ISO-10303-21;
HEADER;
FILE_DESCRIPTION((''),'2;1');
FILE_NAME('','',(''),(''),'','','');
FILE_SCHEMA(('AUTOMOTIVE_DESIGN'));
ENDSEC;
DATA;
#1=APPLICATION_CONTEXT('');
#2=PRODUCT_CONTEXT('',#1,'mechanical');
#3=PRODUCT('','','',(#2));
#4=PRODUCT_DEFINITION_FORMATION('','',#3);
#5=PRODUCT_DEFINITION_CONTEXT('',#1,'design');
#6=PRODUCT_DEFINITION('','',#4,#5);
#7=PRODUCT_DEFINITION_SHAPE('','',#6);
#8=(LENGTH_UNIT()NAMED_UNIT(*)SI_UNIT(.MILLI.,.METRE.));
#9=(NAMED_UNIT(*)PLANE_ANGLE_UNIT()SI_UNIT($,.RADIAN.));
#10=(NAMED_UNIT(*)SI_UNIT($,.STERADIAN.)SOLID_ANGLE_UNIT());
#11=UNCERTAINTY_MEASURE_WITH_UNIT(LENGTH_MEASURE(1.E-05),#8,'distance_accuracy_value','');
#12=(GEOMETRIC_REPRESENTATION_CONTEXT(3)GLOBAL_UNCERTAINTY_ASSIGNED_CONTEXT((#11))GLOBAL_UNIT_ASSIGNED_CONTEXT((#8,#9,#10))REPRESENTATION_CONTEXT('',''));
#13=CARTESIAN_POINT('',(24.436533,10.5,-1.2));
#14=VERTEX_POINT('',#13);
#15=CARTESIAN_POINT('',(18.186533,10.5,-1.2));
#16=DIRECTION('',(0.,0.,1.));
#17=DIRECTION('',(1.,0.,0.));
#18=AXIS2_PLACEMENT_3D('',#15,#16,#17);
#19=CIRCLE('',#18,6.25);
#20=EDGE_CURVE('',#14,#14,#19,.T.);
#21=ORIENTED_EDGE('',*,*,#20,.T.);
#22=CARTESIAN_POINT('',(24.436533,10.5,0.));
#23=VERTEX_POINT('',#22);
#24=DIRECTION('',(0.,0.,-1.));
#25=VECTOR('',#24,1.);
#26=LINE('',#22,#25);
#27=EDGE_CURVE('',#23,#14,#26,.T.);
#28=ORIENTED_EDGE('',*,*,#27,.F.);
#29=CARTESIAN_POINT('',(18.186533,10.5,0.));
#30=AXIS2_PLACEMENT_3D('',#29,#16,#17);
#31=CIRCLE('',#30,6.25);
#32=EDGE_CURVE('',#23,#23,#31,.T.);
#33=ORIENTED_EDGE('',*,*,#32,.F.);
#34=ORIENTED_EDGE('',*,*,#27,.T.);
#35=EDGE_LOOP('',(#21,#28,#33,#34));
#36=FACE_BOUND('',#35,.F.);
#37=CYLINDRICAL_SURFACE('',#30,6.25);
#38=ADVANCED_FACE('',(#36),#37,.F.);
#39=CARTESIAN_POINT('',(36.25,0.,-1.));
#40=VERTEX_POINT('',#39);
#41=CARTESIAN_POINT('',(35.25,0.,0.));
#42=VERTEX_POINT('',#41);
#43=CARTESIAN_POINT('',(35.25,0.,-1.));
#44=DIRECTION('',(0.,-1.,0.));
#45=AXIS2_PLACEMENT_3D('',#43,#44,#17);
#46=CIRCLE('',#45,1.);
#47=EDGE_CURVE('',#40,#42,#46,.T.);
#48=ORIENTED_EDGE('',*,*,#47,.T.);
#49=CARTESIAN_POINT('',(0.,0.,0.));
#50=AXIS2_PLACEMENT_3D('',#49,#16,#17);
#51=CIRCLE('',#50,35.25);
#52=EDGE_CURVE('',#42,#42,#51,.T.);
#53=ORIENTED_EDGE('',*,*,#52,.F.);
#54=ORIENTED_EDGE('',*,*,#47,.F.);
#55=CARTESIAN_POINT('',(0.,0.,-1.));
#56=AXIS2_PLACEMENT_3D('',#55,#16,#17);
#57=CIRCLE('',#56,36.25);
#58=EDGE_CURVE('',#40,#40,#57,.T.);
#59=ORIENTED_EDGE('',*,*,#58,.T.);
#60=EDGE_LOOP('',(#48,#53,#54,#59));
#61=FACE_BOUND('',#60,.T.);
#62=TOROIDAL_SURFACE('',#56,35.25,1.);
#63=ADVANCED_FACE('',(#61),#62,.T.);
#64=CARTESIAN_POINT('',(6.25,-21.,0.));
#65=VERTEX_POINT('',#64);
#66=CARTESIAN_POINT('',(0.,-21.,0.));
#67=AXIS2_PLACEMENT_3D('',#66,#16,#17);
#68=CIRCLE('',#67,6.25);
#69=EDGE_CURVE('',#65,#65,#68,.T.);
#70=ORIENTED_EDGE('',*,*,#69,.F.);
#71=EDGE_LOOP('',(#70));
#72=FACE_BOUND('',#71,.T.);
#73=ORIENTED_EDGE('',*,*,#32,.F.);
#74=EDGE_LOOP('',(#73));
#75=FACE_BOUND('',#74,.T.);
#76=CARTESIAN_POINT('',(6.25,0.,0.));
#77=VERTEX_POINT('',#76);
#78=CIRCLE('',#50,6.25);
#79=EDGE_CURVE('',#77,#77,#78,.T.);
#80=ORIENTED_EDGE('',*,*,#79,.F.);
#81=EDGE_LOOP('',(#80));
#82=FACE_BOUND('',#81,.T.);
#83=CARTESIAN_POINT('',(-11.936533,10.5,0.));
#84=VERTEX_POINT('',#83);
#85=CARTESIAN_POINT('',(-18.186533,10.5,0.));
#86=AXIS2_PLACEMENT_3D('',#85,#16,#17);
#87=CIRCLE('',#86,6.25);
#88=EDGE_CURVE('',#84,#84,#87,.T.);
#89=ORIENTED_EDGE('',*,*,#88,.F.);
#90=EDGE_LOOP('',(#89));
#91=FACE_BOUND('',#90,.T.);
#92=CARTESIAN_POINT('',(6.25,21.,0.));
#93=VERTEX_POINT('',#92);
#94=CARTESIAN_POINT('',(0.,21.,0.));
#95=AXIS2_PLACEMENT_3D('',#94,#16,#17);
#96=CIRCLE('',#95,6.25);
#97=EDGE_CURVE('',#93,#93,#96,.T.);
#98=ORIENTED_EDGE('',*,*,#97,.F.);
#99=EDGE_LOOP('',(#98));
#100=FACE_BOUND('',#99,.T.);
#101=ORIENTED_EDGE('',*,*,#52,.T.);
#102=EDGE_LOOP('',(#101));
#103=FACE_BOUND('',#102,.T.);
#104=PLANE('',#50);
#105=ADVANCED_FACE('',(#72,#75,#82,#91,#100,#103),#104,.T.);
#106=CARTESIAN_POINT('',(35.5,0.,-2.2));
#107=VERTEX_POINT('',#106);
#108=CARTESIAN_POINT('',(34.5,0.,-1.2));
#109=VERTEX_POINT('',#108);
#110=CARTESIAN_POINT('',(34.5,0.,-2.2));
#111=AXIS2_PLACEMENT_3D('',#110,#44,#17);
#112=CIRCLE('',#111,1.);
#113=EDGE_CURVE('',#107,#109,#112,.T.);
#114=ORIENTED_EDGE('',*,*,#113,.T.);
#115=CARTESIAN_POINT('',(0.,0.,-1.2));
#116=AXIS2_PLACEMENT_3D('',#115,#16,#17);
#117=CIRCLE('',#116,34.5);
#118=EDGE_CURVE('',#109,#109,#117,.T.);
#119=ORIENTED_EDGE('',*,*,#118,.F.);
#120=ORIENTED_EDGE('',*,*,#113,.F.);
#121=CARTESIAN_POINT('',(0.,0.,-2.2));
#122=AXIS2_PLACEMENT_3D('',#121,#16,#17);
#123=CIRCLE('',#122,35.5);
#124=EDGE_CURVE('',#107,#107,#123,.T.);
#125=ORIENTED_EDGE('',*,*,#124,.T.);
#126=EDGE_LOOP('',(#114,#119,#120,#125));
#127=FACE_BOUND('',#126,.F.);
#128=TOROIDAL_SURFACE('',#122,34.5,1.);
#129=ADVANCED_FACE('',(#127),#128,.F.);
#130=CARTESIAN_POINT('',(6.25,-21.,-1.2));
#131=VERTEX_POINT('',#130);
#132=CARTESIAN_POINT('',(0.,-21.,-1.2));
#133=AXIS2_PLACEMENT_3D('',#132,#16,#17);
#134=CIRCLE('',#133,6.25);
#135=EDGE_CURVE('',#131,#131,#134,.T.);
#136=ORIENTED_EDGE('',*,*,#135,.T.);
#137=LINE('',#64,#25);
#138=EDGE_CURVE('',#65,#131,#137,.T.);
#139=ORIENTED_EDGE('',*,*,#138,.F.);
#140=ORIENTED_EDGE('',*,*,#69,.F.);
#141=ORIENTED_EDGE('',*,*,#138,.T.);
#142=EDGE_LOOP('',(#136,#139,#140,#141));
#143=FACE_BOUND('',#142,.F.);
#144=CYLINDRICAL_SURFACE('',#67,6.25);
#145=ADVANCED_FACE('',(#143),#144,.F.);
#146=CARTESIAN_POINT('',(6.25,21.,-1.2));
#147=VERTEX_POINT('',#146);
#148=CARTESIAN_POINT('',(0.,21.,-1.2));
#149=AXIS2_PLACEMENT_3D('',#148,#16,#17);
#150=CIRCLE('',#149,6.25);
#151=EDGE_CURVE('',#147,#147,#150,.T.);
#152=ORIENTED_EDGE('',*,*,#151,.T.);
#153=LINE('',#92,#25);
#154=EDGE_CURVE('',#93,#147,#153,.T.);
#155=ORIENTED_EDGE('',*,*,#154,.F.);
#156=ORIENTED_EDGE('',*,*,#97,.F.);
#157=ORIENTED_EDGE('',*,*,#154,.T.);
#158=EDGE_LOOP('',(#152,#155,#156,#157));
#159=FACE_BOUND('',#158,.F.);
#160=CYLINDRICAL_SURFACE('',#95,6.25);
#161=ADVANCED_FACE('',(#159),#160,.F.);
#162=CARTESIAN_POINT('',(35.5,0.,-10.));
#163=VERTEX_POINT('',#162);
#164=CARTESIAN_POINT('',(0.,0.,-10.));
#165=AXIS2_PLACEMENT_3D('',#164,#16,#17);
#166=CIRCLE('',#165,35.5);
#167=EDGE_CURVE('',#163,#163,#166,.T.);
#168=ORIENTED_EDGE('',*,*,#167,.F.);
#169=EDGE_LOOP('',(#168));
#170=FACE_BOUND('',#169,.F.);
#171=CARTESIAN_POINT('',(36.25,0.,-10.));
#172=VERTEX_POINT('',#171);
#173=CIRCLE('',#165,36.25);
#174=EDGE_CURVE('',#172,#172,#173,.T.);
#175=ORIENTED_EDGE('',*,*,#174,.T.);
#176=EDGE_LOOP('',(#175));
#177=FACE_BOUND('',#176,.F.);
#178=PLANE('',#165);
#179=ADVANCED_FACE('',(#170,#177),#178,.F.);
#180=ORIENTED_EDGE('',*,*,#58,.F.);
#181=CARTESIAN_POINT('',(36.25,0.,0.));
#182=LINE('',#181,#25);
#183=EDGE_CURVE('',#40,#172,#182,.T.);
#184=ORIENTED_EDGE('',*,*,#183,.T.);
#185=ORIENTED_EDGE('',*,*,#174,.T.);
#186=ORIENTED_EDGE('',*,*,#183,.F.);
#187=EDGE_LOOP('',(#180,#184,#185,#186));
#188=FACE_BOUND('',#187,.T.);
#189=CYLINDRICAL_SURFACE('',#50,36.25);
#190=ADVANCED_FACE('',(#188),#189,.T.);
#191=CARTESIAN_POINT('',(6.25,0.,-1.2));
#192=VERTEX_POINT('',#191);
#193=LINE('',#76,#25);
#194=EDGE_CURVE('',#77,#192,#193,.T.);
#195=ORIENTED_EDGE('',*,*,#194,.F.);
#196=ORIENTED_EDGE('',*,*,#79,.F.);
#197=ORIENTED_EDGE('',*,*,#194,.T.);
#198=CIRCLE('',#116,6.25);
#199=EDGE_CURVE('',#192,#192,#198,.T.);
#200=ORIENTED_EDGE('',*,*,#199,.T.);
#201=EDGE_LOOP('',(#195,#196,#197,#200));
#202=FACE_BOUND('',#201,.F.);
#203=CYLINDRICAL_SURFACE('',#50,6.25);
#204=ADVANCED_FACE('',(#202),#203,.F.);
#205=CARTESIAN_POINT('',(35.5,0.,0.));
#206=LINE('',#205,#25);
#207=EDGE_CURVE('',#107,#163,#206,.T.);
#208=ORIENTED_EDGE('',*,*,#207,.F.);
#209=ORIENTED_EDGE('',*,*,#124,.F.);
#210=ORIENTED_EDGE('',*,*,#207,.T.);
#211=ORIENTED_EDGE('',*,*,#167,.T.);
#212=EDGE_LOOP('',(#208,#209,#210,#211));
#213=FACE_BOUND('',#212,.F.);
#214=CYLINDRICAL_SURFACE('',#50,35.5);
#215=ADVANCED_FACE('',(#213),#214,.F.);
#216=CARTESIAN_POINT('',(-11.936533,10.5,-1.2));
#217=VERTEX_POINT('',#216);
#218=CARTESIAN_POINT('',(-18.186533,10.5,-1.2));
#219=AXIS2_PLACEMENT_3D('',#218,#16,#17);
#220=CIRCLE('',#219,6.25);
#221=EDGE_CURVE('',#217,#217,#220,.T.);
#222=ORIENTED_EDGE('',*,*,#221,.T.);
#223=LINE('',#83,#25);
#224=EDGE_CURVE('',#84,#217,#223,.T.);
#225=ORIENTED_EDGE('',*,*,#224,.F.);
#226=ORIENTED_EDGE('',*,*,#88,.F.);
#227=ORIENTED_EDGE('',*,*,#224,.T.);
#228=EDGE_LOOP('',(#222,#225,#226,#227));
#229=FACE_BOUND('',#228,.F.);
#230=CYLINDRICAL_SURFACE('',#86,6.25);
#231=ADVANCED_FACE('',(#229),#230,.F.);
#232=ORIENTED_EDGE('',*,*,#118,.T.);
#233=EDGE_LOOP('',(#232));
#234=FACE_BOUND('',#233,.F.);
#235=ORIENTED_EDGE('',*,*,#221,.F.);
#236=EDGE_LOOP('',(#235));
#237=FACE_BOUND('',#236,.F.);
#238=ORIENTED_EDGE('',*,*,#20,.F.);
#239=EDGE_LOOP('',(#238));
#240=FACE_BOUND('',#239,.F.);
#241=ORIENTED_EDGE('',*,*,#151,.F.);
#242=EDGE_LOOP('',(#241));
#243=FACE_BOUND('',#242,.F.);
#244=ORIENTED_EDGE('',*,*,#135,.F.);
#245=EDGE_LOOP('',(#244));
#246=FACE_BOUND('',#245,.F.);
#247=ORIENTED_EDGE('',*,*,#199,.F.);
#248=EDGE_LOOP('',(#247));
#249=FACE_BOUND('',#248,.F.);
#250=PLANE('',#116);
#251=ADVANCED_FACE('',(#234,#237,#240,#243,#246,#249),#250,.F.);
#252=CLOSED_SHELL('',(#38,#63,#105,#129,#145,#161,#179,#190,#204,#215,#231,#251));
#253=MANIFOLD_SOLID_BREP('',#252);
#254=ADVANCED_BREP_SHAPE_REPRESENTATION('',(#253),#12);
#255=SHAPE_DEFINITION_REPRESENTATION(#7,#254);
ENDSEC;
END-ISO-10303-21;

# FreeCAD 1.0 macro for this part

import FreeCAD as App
import Part
import Sketcher

V = App.Vector


def edges_at(feature, points):
    """Names of the edges that pass closest to the given points."""
    edges = feature.Shape.Edges
    near = lambda p: min(range(len(edges)), key=lambda i: edges[i].distToShape(Part.Vertex(*p))[0])
    return sorted({f"Edge{near(p) + 1}" for p in points})

doc = App.newDocument("Part")
params = doc.addObject("Spreadsheet::Sheet", "Params")
for row, (alias, value) in enumerate([
    ("sketch1_diameter", "71 mm"),
    ("sketch1_diameter2", "12.5 mm"),
    ("pad1_length", "1.2 mm"),
    ("sketch2_diameter", "71 mm"),
    ("sketch2_diameter2", "72.5 mm"),
    ("pad2_length", "10 mm"),
    ("fillet_radius", "1 mm"),
], start=1):
    params.set(f"A{row}", alias)
    params.set(f"B{row}", "=" + value)
    params.setAlias(f"B{row}", alias)

body = doc.addObject("PartDesign::Body", "Body")

sketch1 = body.newObject("Sketcher::SketchObject", "Sketch")
sketch1.AttachmentSupport = (doc.getObject("XY_Plane"), [""])
sketch1.MapMode = "FlatFace"
sketch1.addGeometry(Part.Circle(V(0, 0, 0), V(0, 0, 1), 36), False)
sketch1.addGeometry(Part.Circle(V(0, -21, 0), V(0, 0, 1), 6), False)
sketch1.addGeometry(Part.Circle(V(-18, 10, 0), V(0, 0, 1), 6), False)
sketch1.addGeometry(Part.Circle(V(0, 0, 0), V(0, 0, 1), 6), False)
sketch1.addGeometry(Part.Circle(V(18, 10, 0), V(0, 0, 1), 6), False)
sketch1.addGeometry(Part.Circle(V(0, 21, 0), V(0, 0, 1), 6), False)
sketch1.addConstraint(Sketcher.Constraint("Coincident", 0, 3, -1, 1))
sketch1.addConstraint(Sketcher.Constraint("Coincident", 3, 3, -1, 1))
sketch1.addConstraint(Sketcher.Constraint("Equal", 1, 2))
sketch1.addConstraint(Sketcher.Constraint("Equal", 2, 3))
sketch1.addConstraint(Sketcher.Constraint("Equal", 3, 4))
sketch1.addConstraint(Sketcher.Constraint("Equal", 4, 5))
sketch1.addConstraint(Sketcher.Constraint("Symmetric", 1, 3, 5, 3, -1, 1))
sketch1.addConstraint(Sketcher.Constraint("Symmetric", 2, 3, 4, 3, -2))
sketch1.addConstraint(Sketcher.Constraint("PointOnObject", 1, 3, -2))
sketch1.addConstraint(Sketcher.Constraint("Diameter", 0, 71.0))
sketch1.addConstraint(Sketcher.Constraint("Diameter", 1, 12.5))
sketch1.addConstraint(Sketcher.Constraint("DistanceY", 1, 3, -1, 1, 21.0))
sketch1.addConstraint(Sketcher.Constraint("DistanceY", -1, 1, 2, 3, 10.5))
sketch1.addConstraint(Sketcher.Constraint("DistanceX", 2, 3, -1, 1, 18.186533))
sketch1.setExpression("Constraints[9]", "Params.sketch1_diameter")
sketch1.setExpression("Constraints[10]", "Params.sketch1_diameter2")
pad1 = body.newObject("PartDesign::Pad", "Pad")
pad1.Profile = sketch1
pad1.setExpression("Length", "Params.pad1_length")
pad1.Reversed = True

sketch2 = body.newObject("Sketcher::SketchObject", "Sketch001")
sketch2.AttachmentSupport = (doc.getObject("XY_Plane"), [""])
sketch2.MapMode = "FlatFace"
sketch2.addGeometry(Part.Circle(V(0, 0, 0), V(0, 0, 1), 36), False)
sketch2.addGeometry(Part.Circle(V(0, 0, 0), V(0, 0, 1), 36), False)
sketch2.addConstraint(Sketcher.Constraint("Coincident", 0, 3, -1, 1))
sketch2.addConstraint(Sketcher.Constraint("Coincident", 1, 3, -1, 1))
sketch2.addConstraint(Sketcher.Constraint("Diameter", 1, 71.0))
sketch2.addConstraint(Sketcher.Constraint("Diameter", 0, 72.5))
sketch2.setExpression("Constraints[2]", "Params.sketch2_diameter")
sketch2.setExpression("Constraints[3]", "Params.sketch2_diameter2")
pad2 = body.newObject("PartDesign::Pad", "Pad001")
pad2.Profile = sketch2
pad2.setExpression("Length", "Params.pad2_length")
pad2.Reversed = True
doc.recompute()

fillet = body.newObject("PartDesign::Fillet", "Fillet")
fillet.Base = (pad2, edges_at(pad2, [(-36.25, 0, 0), (-35.5, 0, -1.2)]))
fillet.setExpression("Radius", "Params.fillet_radius")

doc.recompute()
